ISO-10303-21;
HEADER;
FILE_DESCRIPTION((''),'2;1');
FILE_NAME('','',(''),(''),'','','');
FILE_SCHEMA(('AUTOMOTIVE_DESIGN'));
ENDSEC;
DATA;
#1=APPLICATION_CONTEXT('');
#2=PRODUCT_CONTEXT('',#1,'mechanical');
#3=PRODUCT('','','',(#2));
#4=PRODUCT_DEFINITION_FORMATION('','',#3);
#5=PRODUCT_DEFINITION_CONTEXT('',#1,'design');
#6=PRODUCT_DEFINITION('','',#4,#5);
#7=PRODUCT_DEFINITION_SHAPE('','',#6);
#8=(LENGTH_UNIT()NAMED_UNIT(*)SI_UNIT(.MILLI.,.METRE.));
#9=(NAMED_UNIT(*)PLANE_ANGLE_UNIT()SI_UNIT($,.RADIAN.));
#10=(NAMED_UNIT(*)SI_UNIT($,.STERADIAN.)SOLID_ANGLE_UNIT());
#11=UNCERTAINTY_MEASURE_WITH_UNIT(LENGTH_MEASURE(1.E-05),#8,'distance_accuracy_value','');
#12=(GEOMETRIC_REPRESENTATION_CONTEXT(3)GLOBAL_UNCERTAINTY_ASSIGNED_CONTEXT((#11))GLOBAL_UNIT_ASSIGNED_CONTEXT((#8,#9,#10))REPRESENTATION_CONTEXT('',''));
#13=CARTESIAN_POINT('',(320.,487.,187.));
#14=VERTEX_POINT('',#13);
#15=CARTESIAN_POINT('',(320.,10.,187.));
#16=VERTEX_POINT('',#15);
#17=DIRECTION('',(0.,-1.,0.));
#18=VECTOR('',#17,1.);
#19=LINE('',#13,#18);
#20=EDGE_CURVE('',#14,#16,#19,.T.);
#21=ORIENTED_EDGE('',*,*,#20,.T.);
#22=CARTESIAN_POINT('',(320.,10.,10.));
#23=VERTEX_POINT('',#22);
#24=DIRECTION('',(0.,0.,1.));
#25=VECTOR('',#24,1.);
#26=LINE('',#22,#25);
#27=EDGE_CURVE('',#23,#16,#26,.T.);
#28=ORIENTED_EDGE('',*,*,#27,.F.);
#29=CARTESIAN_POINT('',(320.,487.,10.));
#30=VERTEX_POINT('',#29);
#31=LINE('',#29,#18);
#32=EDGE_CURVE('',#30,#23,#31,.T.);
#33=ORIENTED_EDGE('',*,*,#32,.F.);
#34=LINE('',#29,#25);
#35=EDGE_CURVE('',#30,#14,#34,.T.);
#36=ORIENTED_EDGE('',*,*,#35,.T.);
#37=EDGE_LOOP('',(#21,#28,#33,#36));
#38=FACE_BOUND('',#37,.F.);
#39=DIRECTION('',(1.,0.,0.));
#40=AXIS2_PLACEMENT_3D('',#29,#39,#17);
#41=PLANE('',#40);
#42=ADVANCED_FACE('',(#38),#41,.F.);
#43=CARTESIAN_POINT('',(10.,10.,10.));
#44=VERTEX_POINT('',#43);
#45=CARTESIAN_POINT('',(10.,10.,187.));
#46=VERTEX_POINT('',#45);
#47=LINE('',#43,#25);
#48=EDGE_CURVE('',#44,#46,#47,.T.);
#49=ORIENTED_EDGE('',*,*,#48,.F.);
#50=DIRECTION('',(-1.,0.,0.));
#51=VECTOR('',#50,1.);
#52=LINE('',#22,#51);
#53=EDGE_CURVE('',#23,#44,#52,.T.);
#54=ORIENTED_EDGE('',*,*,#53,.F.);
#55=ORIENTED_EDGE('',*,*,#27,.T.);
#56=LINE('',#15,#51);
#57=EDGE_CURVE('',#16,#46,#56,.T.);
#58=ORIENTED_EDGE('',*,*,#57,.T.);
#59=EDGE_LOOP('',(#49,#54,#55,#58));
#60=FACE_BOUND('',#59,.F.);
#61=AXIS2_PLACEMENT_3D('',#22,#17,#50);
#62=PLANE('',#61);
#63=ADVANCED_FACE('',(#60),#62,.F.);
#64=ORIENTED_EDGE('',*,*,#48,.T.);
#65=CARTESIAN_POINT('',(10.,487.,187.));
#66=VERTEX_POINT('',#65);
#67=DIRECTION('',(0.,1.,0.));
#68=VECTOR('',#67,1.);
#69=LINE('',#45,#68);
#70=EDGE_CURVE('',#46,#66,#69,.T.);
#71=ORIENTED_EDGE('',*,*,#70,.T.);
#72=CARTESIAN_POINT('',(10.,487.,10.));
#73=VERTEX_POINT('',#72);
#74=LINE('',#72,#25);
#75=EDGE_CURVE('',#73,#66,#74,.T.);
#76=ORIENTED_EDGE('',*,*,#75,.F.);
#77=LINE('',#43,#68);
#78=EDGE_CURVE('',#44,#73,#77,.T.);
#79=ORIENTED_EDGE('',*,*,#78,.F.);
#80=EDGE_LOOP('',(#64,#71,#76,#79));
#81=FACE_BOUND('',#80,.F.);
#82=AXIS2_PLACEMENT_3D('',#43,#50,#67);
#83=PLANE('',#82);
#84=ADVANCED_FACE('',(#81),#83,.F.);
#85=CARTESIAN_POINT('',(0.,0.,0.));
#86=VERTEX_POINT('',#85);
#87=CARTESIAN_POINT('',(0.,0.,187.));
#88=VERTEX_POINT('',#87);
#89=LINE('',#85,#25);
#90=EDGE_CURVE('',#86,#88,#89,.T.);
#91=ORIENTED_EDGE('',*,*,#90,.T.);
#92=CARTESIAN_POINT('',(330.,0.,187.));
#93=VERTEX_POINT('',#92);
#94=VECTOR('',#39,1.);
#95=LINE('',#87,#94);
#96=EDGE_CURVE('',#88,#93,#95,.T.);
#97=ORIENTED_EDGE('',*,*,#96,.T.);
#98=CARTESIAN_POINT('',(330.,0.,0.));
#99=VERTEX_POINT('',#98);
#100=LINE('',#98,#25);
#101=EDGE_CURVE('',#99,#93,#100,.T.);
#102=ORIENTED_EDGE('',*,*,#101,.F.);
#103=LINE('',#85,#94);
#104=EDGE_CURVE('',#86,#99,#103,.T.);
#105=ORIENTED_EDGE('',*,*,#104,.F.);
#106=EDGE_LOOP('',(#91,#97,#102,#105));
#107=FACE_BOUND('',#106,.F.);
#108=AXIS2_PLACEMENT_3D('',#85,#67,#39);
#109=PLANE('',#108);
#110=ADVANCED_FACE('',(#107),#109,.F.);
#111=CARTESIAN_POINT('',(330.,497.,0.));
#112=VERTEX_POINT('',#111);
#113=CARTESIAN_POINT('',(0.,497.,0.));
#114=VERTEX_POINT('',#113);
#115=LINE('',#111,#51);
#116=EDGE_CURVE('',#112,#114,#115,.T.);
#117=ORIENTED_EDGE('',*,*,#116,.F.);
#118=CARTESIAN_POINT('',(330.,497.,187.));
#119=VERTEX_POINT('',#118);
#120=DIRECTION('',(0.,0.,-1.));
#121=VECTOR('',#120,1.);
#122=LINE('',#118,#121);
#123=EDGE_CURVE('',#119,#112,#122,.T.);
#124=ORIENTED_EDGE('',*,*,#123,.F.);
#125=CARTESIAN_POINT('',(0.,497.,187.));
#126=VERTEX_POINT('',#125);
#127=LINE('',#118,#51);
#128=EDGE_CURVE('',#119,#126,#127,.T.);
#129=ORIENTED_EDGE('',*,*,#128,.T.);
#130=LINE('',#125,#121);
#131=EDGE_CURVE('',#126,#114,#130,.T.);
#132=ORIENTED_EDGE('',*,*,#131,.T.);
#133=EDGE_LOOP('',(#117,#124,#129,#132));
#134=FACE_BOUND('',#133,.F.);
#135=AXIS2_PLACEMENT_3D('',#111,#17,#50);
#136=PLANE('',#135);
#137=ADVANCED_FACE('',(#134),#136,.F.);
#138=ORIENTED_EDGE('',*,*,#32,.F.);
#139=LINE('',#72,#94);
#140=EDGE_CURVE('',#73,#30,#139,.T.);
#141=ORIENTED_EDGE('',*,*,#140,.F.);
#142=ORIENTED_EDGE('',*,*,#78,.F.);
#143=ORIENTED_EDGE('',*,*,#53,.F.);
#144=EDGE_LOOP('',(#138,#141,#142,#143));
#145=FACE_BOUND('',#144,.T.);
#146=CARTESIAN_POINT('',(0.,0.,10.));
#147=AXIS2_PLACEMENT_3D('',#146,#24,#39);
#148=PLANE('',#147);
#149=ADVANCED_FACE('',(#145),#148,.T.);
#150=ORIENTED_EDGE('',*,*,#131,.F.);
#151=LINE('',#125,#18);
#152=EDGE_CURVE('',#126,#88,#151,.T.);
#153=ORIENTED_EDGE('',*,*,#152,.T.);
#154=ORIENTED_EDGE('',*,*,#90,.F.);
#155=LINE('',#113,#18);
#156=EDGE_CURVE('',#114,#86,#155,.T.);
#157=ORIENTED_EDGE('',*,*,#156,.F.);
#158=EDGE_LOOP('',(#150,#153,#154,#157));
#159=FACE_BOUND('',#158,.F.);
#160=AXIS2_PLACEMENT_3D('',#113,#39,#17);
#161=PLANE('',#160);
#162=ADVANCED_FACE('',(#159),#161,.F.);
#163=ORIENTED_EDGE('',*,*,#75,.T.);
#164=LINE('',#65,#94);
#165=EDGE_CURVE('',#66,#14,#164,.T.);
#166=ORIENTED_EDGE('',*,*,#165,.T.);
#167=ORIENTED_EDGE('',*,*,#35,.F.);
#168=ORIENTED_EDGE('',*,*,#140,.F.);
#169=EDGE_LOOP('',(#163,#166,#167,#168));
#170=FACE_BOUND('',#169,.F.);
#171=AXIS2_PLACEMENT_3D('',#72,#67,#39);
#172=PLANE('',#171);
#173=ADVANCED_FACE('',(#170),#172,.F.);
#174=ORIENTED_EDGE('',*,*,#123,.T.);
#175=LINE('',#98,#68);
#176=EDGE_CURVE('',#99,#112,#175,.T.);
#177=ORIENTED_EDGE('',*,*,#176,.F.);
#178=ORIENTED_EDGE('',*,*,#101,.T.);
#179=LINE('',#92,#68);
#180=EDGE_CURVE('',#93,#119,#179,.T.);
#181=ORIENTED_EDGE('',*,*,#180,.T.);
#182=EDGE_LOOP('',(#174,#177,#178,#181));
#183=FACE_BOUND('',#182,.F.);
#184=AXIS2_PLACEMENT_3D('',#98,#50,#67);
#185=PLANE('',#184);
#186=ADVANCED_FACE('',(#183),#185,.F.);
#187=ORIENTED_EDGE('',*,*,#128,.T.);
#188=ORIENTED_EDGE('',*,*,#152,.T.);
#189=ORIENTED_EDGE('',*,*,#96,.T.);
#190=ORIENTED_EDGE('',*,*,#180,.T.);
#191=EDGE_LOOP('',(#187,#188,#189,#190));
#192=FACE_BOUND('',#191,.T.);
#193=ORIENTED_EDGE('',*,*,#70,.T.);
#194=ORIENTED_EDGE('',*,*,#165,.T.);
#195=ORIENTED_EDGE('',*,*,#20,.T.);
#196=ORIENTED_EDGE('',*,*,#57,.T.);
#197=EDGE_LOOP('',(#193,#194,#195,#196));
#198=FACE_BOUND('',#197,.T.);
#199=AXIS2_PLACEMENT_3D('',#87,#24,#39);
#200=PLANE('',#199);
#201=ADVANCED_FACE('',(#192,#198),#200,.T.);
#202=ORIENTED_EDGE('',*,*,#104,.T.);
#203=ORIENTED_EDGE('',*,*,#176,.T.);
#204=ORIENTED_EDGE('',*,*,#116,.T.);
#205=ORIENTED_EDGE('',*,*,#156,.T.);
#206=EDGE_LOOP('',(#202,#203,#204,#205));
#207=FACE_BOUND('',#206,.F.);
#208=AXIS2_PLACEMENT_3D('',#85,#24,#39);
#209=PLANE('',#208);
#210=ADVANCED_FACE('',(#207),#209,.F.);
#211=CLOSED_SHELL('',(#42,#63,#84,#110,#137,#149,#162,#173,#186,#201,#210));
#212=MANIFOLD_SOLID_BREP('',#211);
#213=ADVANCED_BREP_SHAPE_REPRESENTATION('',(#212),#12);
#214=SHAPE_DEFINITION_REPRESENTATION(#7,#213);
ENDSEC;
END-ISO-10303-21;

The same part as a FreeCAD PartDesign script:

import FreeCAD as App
import Part
import Sketcher

V = App.Vector


def add_polygon(sketch, points):
    """Adds a closed chain of lines whose ends are joined by coincident constraints."""
    first, n = sketch.GeometryCount, len(points)
    for a, b in zip(points, points[1:] + points[:1]):
        sketch.addGeometry(Part.LineSegment(App.Vector(*a, 0), App.Vector(*b, 0)), False)
    for i in range(n):
        sketch.addConstraint(Sketcher.Constraint("Coincident", first + i, 2, first + (i + 1) % n, 1))

doc = App.newDocument("Part")
body = doc.addObject("PartDesign::Body", "Body")

sketch1 = body.newObject("Sketcher::SketchObject", "Sketch")
sketch1.AttachmentSupport = (doc.getObject("XY_Plane"), [""])
sketch1.MapMode = "FlatFace"
add_polygon(sketch1, [(0, 497), (0, 0), (330, 0), (330, 497)])
sketch1.addConstraint([
    Sketcher.Constraint("Vertical", 0),
    Sketcher.Constraint("Horizontal", 1),
    Sketcher.Constraint("Vertical", 2),
    Sketcher.Constraint("Horizontal", 3),
    Sketcher.Constraint("Coincident", 0, 2, -1, 1),
    Sketcher.Constraint("DistanceX", 1, 1, 1, 2, 330.0),
    Sketcher.Constraint("DistanceY", 0, 2, 0, 1, 497.0),
])
pad1 = body.newObject("PartDesign::Pad", "Pad")
pad1.Profile = sketch1
pad1.Length = 10

sketch2 = body.newObject("Sketcher::SketchObject", "Sketch001")
sketch2.AttachmentSupport = (doc.getObject("XY_Plane"), [""])
sketch2.MapMode = "FlatFace"
sketch2.AttachmentOffset = App.Placement(V(0, 0, 10), App.Rotation())
add_polygon(sketch2, [(0, 497), (0, 0), (330, 0), (330, 497)])
add_polygon(sketch2, [(10, 10), (10, 487), (320, 487), (320, 10)])
sketch2.addConstraint([
    Sketcher.Constraint("Vertical", 0),
    Sketcher.Constraint("Horizontal", 1),
    Sketcher.Constraint("Vertical", 2),
    Sketcher.Constraint("Horizontal", 3),
    Sketcher.Constraint("Vertical", 4),
    Sketcher.Constraint("Horizontal", 5),
    Sketcher.Constraint("Vertical", 6),
    Sketcher.Constraint("Horizontal", 7),
    Sketcher.Constraint("Coincident", 0, 2, -1, 1),
    Sketcher.Constraint("DistanceX", 1, 1, 1, 2, 330.0),
    Sketcher.Constraint("DistanceY", 0, 2, 0, 1, 497.0),
    Sketcher.Constraint("DistanceX", -1, 1, 4, 2, 10.0),
    Sketcher.Constraint("DistanceY", -1, 1, 6, 2, 10.0),
    Sketcher.Constraint("DistanceY", 4, 2, 3, 2, 10.0),
    Sketcher.Constraint("DistanceX", 5, 2, 2, 2, 10.0),
])
pad2 = body.newObject("PartDesign::Pad", "Pad001")
pad2.Profile = sketch2
pad2.Length = 177

doc.recompute()
